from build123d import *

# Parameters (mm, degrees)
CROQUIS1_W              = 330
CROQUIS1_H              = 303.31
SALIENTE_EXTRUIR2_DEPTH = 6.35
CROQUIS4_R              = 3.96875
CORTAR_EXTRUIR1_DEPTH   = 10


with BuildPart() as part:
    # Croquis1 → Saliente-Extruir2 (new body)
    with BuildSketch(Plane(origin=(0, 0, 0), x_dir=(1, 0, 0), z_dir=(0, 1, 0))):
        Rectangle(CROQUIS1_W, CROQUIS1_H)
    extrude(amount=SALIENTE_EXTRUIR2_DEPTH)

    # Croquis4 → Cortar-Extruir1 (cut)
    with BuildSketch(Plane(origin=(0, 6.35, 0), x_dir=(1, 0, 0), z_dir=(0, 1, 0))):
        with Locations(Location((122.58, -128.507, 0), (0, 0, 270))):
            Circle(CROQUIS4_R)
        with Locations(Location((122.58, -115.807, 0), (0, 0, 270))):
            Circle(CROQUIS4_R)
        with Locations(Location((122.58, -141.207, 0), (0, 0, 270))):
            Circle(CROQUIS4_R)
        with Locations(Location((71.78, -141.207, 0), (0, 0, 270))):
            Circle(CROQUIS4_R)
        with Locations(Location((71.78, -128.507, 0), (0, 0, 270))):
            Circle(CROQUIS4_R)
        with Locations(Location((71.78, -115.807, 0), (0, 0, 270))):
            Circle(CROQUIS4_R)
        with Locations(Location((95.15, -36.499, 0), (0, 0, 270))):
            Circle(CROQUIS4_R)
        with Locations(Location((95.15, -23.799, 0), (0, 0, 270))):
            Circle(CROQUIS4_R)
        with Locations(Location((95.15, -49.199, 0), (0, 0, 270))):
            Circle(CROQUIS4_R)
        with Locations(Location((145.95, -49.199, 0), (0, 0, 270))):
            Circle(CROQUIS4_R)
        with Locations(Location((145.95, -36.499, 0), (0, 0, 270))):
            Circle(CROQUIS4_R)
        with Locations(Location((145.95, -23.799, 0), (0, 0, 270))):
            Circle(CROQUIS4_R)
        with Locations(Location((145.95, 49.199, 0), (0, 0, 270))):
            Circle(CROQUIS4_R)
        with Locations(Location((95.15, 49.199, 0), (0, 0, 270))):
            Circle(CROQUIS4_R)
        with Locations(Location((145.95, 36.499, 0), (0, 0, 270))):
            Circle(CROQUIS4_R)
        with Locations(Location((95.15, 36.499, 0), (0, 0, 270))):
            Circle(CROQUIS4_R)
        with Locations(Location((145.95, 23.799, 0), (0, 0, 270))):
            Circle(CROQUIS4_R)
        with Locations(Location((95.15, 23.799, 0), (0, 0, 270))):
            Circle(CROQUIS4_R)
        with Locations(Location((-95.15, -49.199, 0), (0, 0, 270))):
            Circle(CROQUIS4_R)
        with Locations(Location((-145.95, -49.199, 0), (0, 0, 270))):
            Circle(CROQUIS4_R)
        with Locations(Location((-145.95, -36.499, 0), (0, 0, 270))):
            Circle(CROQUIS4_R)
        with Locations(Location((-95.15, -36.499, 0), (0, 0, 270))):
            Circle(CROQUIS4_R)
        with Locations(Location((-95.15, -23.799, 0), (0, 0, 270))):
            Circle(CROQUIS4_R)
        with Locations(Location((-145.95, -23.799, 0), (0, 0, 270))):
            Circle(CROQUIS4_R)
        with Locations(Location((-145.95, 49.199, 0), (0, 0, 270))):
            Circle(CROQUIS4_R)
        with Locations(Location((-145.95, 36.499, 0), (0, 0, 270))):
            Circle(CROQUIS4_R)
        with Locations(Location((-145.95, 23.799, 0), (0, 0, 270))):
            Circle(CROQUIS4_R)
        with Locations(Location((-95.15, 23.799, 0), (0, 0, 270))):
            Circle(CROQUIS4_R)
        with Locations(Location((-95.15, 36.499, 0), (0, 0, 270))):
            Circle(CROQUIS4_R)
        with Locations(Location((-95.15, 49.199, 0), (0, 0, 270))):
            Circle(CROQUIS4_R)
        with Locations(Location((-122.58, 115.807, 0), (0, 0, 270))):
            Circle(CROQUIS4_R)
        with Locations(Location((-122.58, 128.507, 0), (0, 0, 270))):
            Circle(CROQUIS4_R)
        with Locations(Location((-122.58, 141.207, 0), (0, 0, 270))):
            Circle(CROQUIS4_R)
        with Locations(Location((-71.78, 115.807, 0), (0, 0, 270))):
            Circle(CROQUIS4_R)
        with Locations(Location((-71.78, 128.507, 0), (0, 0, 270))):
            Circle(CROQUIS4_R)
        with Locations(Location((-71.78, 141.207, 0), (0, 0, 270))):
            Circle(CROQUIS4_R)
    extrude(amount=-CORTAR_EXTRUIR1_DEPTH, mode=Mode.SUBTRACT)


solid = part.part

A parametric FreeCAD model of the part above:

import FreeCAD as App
import Part
import Sketcher
from FreeCAD import Vector


def add_polygon(sketch, points):
    """Adds a closed chain of lines whose ends are joined by coincident constraints."""
    first, n = sketch.GeometryCount, len(points)
    for a, b in zip(points, points[1:] + points[:1]):
        sketch.addGeometry(Part.LineSegment(App.Vector(*a, 0), App.Vector(*b, 0)), False)
    for i in range(n):
        sketch.addConstraint(Sketcher.Constraint("Coincident", first + i, 2, first + (i + 1) % n, 1))

doc = App.newDocument("Part")
body = doc.addObject("PartDesign::Body", "Body")

sketch1 = body.newObject("Sketcher::SketchObject", "Sketch")
sketch1.AttachmentSupport = (doc.getObject("XZ_Plane"), [""])
sketch1.MapMode = "FlatFace"
add_polygon(sketch1, [(-165, -152), (-165, 152), (165, 152), (165, -152)])
sketch1.addConstraint(Sketcher.Constraint("Vertical", 0))
sketch1.addConstraint(Sketcher.Constraint("Horizontal", 1))
sketch1.addConstraint(Sketcher.Constraint("Vertical", 2))
sketch1.addConstraint(Sketcher.Constraint("Horizontal", 3))
sketch1.addConstraint(Sketcher.Constraint("Symmetric", 0, 2, 2, 2, -1, 1))
sketch1.addConstraint(Sketcher.Constraint("DistanceX", 1, 1, 1, 2, 330.0))
sketch1.addConstraint(Sketcher.Constraint("DistanceY", 0, 1, 0, 2, 303.31))
pad1 = body.newObject("PartDesign::Pad", "Pad")
pad1.Profile = sketch1
pad1.Length = 6.35
pad1.Reversed = True

sketch2 = body.newObject("Sketcher::SketchObject", "Sketch001")
sketch2.AttachmentSupport = (doc.getObject("XZ_Plane"), [""])
sketch2.MapMode = "FlatFace"
sketch2.AttachmentOffset = App.Placement(Vector(0, 0, -6.35), App.Rotation())
sketch2.addGeometry(Part.Circle(Vector(122.6, 128.5, 0), Vector(0, 0, 1), 4), False)
sketch2.addGeometry(Part.Circle(Vector(122.6, 115.8, 0), Vector(0, 0, 1), 4), False)
sketch2.addGeometry(Part.Circle(Vector(122.6, 141.2, 0), Vector(0, 0, 1), 4), False)
sketch2.addGeometry(Part.Circle(Vector(71.8, 141.2, 0), Vector(0, 0, 1), 4), False)
sketch2.addGeometry(Part.Circle(Vector(71.8, 128.5, 0), Vector(0, 0, 1), 4), False)
sketch2.addGeometry(Part.Circle(Vector(71.8, 115.8, 0), Vector(0, 0, 1), 4), False)
sketch2.addGeometry(Part.Circle(Vector(95.2, 36.5, 0), Vector(0, 0, 1), 4), False)
sketch2.addGeometry(Part.Circle(Vector(95.2, 23.8, 0), Vector(0, 0, 1), 4), False)
sketch2.addGeometry(Part.Circle(Vector(95.2, 49.2, 0), Vector(0, 0, 1), 4), False)
sketch2.addGeometry(Part.Circle(Vector(145.9, 49.2, 0), Vector(0, 0, 1), 4), False)
sketch2.addGeometry(Part.Circle(Vector(145.9, 36.5, 0), Vector(0, 0, 1), 4), False)
sketch2.addGeometry(Part.Circle(Vector(145.9, 23.8, 0), Vector(0, 0, 1), 4), False)
sketch2.addGeometry(Part.Circle(Vector(145.9, -49.2, 0), Vector(0, 0, 1), 4), False)
sketch2.addGeometry(Part.Circle(Vector(95.2, -49.2, 0), Vector(0, 0, 1), 4), False)
sketch2.addGeometry(Part.Circle(Vector(145.9, -36.5, 0), Vector(0, 0, 1), 4), False)
sketch2.addGeometry(Part.Circle(Vector(95.2, -36.5, 0), Vector(0, 0, 1), 4), False)
sketch2.addGeometry(Part.Circle(Vector(145.9, -23.8, 0), Vector(0, 0, 1), 4), False)
sketch2.addGeometry(Part.Circle(Vector(95.2, -23.8, 0), Vector(0, 0, 1), 4), False)
sketch2.addGeometry(Part.Circle(Vector(-95.2, 49.2, 0), Vector(0, 0, 1), 4), False)
sketch2.addGeometry(Part.Circle(Vector(-145.9, 49.2, 0), Vector(0, 0, 1), 4), False)
sketch2.addGeometry(Part.Circle(Vector(-145.9, 36.5, 0), Vector(0, 0, 1), 4), False)
sketch2.addGeometry(Part.Circle(Vector(-95.2, 36.5, 0), Vector(0, 0, 1), 4), False)
sketch2.addGeometry(Part.Circle(Vector(-95.2, 23.8, 0), Vector(0, 0, 1), 4), False)
sketch2.addGeometry(Part.Circle(Vector(-145.9, 23.8, 0), Vector(0, 0, 1), 4), False)
sketch2.addGeometry(Part.Circle(Vector(-145.9, -49.2, 0), Vector(0, 0, 1), 4), False)
sketch2.addGeometry(Part.Circle(Vector(-145.9, -36.5, 0), Vector(0, 0, 1), 4), False)
sketch2.addGeometry(Part.Circle(Vector(-145.9, -23.8, 0), Vector(0, 0, 1), 4), False)
sketch2.addGeometry(Part.Circle(Vector(-95.2, -23.8, 0), Vector(0, 0, 1), 4), False)
sketch2.addGeometry(Part.Circle(Vector(-95.2, -36.5, 0), Vector(0, 0, 1), 4), False)
sketch2.addGeometry(Part.Circle(Vector(-95.2, -49.2, 0), Vector(0, 0, 1), 4), False)
sketch2.addGeometry(Part.Circle(Vector(-122.6, -115.8, 0), Vector(0, 0, 1), 4), False)
sketch2.addGeometry(Part.Circle(Vector(-122.6, -128.5, 0), Vector(0, 0, 1), 4), False)
sketch2.addGeometry(Part.Circle(Vector(-122.6, -141.2, 0), Vector(0, 0, 1), 4), False)
sketch2.addGeometry(Part.Circle(Vector(-71.8, -115.8, 0), Vector(0, 0, 1), 4), False)
sketch2.addGeometry(Part.Circle(Vector(-71.8, -128.5, 0), Vector(0, 0, 1), 4), False)
sketch2.addGeometry(Part.Circle(Vector(-71.8, -141.2, 0), Vector(0, 0, 1), 4), False)
sketch2.addConstraint(Sketcher.Constraint("Equal", 0, 1))
sketch2.addConstraint(Sketcher.Constraint("Equal", 1, 2))
sketch2.addConstraint(Sketcher.Constraint("Equal", 2, 3))
sketch2.addConstraint(Sketcher.Constraint("Equal", 3, 4))
sketch2.addConstraint(Sketcher.Constraint("Equal", 4, 5))
sketch2.addConstraint(Sketcher.Constraint("Equal", 5, 6))
sketch2.addConstraint(Sketcher.Constraint("Equal", 6, 7))
sketch2.addConstraint(Sketcher.Constraint("Equal", 7, 8))
sketch2.addConstraint(Sketcher.Constraint("Equal", 8, 9))
sketch2.addConstraint(Sketcher.Constraint("Equal", 9, 10))
sketch2.addConstraint(Sketcher.Constraint("Equal", 10, 11))
sketch2.addConstraint(Sketcher.Constraint("Equal", 11, 12))
sketch2.addConstraint(Sketcher.Constraint("Equal", 12, 13))
sketch2.addConstraint(Sketcher.Constraint("Equal", 13, 14))
sketch2.addConstraint(Sketcher.Constraint("Equal", 14, 15))
sketch2.addConstraint(Sketcher.Constraint("Equal", 15, 16))
sketch2.addConstraint(Sketcher.Constraint("Equal", 16, 17))
sketch2.addConstraint(Sketcher.Constraint("Equal", 17, 18))
sketch2.addConstraint(Sketcher.Constraint("Equal", 18, 19))
sketch2.addConstraint(Sketcher.Constraint("Equal", 19, 20))
sketch2.addConstraint(Sketcher.Constraint("Equal", 20, 21))
sketch2.addConstraint(Sketcher.Constraint("Equal", 21, 22))
sketch2.addConstraint(Sketcher.Constraint("Equal", 22, 23))
sketch2.addConstraint(Sketcher.Constraint("Equal", 23, 24))
sketch2.addConstraint(Sketcher.Constraint("Equal", 24, 25))
sketch2.addConstraint(Sketcher.Constraint("Equal", 25, 26))
sketch2.addConstraint(Sketcher.Constraint("Equal", 26, 27))
sketch2.addConstraint(Sketcher.Constraint("Equal", 27, 28))
sketch2.addConstraint(Sketcher.Constraint("Equal", 28, 29))
sketch2.addConstraint(Sketcher.Constraint("Equal", 29, 30))
sketch2.addConstraint(Sketcher.Constraint("Equal", 30, 31))
sketch2.addConstraint(Sketcher.Constraint("Equal", 31, 32))
sketch2.addConstraint(Sketcher.Constraint("Equal", 32, 33))
sketch2.addConstraint(Sketcher.Constraint("Equal", 33, 34))
sketch2.addConstraint(Sketcher.Constraint("Equal", 34, 35))
sketch2.addConstraint(Sketcher.Constraint("Symmetric", 13, 3, 18, 3, -1, 1))
sketch2.addConstraint(Sketcher.Constraint("Symmetric", 12, 3, 19, 3, -1, 1))
sketch2.addConstraint(Sketcher.Constraint("Symmetric", 14, 3, 20, 3, -1, 1))
sketch2.addConstraint(Sketcher.Constraint("Symmetric", 15, 3, 21, 3, -1, 1))
sketch2.addConstraint(Sketcher.Constraint("Symmetric", 17, 3, 22, 3, -1, 1))
sketch2.addConstraint(Sketcher.Constraint("Symmetric", 16, 3, 23, 3, -1, 1))
sketch2.addConstraint(Sketcher.Constraint("Symmetric", 9, 3, 24, 3, -1, 1))
sketch2.addConstraint(Sketcher.Constraint("Symmetric", 10, 3, 25, 3, -1, 1))
sketch2.addConstraint(Sketcher.Constraint("Symmetric", 11, 3, 26, 3, -1, 1))
sketch2.addConstraint(Sketcher.Constraint("Symmetric", 7, 3, 27, 3, -1, 1))
sketch2.addConstraint(Sketcher.Constraint("Symmetric", 6, 3, 28, 3, -1, 1))
sketch2.addConstraint(Sketcher.Constraint("Symmetric", 8, 3, 29, 3, -1, 1))
sketch2.addConstraint(Sketcher.Constraint("Symmetric", 1, 3, 30, 3, -1, 1))
sketch2.addConstraint(Sketcher.Constraint("Symmetric", 0, 3, 31, 3, -1, 1))
sketch2.addConstraint(Sketcher.Constraint("Symmetric", 2, 3, 32, 3, -1, 1))
sketch2.addConstraint(Sketcher.Constraint("Symmetric", 5, 3, 33, 3, -1, 1))
sketch2.addConstraint(Sketcher.Constraint("Symmetric", 4, 3, 34, 3, -1, 1))
sketch2.addConstraint(Sketcher.Constraint("Symmetric", 3, 3, 35, 3, -1, 1))
sketch2.addConstraint(Sketcher.Constraint("Symmetric", 8, 3, 18, 3, -2))
sketch2.addConstraint(Sketcher.Constraint("Symmetric", 9, 3, 19, 3, -2))
sketch2.addConstraint(Sketcher.Constraint("Symmetric", 10, 3, 20, 3, -2))
sketch2.addConstraint(Sketcher.Constraint("Symmetric", 6, 3, 21, 3, -2))
sketch2.addConstraint(Sketcher.Constraint("Symmetric", 7, 3, 22, 3, -2))
sketch2.addConstraint(Sketcher.Constraint("Symmetric", 11, 3, 23, 3, -2))
sketch2.addConstraint(Sketcher.Constraint("Horizontal", 2, 3, 3, 3))
sketch2.addConstraint(Sketcher.Constraint("Horizontal", 0, 3, 4, 3))
sketch2.addConstraint(Sketcher.Constraint("Horizontal", 1, 3, 5, 3))
sketch2.addConstraint(Sketcher.Constraint("Horizontal", 8, 3, 9, 3))
sketch2.addConstraint(Sketcher.Constraint("Horizontal", 6, 3, 10, 3))
sketch2.addConstraint(Sketcher.Constraint("Horizontal", 7, 3, 11, 3))
sketch2.addConstraint(Sketcher.Constraint("Vertical", 0, 3, 1, 3))
sketch2.addConstraint(Sketcher.Constraint("Vertical", 1, 3, 2, 3))
sketch2.addConstraint(Sketcher.Constraint("Vertical", 3, 3, 4, 3))
sketch2.addConstraint(Sketcher.Constraint("Vertical", 4, 3, 5, 3))
sketch2.addConstraint(Sketcher.Constraint("Vertical", 6, 3, 7, 3))
sketch2.addConstraint(Sketcher.Constraint("Vertical", 7, 3, 8, 3))
sketch2.addConstraint(Sketcher.Constraint("Vertical", 9, 3, 10, 3))
sketch2.addConstraint(Sketcher.Constraint("Vertical", 10, 3, 11, 3))
sketch2.addConstraint(Sketcher.Constraint("Diameter", 0, 7.9375))
sketch2.addConstraint(Sketcher.Constraint("DistanceY", 1, 3, 0, 3, 12.7))
sketch2.addConstraint(Sketcher.Constraint("DistanceY", 0, 3, 2, 3, 12.7))
sketch2.addConstraint(Sketcher.Constraint("DistanceX", 3, 3, 2, 3, 50.8))
sketch2.addConstraint(Sketcher.Constraint("DistanceY", 7, 3, 6, 3, 12.7))
sketch2.addConstraint(Sketcher.Constraint("DistanceY", 6, 3, 8, 3, 12.7))
sketch2.addConstraint(Sketcher.Constraint("DistanceX", 8, 3, 9, 3, 50.8))
sketch2.addConstraint(Sketcher.Constraint("DistanceX", 18, 3, 8, 3, 190.3))
sketch2.addConstraint(Sketcher.Constraint("DistanceX", -1, 1, 0, 3, 122.58))
sketch2.addConstraint(Sketcher.Constraint("DistanceY", -1, 1, 0, 3, 128.507))
sketch2.addConstraint(Sketcher.Constraint("DistanceY", -1, 1, 6, 3, 36.499))
pocket1 = body.newObject("PartDesign::Pocket", "Pocket")
pocket1.Profile = sketch2
pocket1.Length = 10
pocket1.Reversed = True

doc.recompute()
